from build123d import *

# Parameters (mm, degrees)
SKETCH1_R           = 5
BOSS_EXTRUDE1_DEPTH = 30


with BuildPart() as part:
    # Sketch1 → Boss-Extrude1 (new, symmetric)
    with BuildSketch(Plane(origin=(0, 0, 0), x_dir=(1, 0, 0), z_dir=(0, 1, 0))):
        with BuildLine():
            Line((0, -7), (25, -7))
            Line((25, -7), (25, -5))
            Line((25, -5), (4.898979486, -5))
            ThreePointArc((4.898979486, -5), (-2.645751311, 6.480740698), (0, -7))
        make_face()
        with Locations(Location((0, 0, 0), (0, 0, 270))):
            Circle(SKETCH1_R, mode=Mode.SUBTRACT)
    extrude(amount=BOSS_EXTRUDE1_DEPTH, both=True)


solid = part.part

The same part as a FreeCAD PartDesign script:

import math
import FreeCAD as App
import Part
import Sketcher
Q = App.Units.Quantity

doc = App.newDocument("Part")
body = doc.addObject("PartDesign::Body", "Body")

sketch1 = body.newObject("Sketcher::SketchObject", "Sketch")
sketch1.AttachmentSupport = (doc.getObject("XZ_Plane"), [""])
sketch1.MapMode = "FlatFace"
sketch1.addGeometry([
    Part.LineSegment(App.Vector(0, 7, 0), App.Vector(25, 7, 0)),
    Part.LineSegment(App.Vector(25, 7, 0), App.Vector(25, 5, 0)),
    Part.LineSegment(App.Vector(25, 5, 0), App.Vector(4.9, 5, 0)),
    Part.ArcOfCircle(Part.Circle(App.Vector(0, 0, 0), App.Vector(0, 0, 1), 7), math.radians(90), math.radians(406)),
    Part.Circle(App.Vector(0, 0, 0), App.Vector(0, 0, 1), 5),
], False)
sketch1.addConstraint([
    Sketcher.Constraint("Coincident", 0, 2, 1, 1),
    Sketcher.Constraint("Coincident", 1, 2, 2, 1),
    Sketcher.Constraint("Coincident", 2, 2, 3, 2),
    Sketcher.Constraint("Tangent", 3, 1, 0, 1),
    Sketcher.Constraint("Horizontal", 0),
    Sketcher.Constraint("Vertical", 1),
    Sketcher.Constraint("Horizontal", 2),
    Sketcher.Constraint("Coincident", 3, 3, -1, 1),
    Sketcher.Constraint("Coincident", 4, 3, -1, 1),
    Sketcher.Constraint("Diameter", 4, Q("10 mm")),
    Sketcher.Constraint("Radius", 3, Q("7 mm")),
    Sketcher.Constraint("DistanceX", 0, 1, 0, 2, Q("25 mm")),
    Sketcher.Constraint("DistanceY", 1, 2, 1, 1, Q("2 mm")),
])
pad1 = body.newObject("PartDesign::Pad", "Pad")
pad1.Profile = sketch1
pad1.Length = 60
pad1.Midplane = True

doc.recompute()
